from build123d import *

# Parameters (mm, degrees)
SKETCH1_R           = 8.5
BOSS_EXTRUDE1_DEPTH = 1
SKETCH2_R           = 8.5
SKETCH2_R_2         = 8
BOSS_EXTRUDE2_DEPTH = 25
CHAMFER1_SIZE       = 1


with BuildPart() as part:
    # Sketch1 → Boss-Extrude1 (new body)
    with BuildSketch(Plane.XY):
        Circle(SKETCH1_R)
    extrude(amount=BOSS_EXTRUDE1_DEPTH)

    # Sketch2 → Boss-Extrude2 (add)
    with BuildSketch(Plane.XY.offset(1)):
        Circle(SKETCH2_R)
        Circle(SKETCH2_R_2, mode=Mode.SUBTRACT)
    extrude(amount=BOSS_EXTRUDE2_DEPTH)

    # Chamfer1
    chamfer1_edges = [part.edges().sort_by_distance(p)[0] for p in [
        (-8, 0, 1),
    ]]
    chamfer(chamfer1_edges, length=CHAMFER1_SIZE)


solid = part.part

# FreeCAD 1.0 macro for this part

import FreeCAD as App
import Part
import Sketcher


def edges_at(feature, points):
    """Names of the edges that pass closest to the given points."""
    edges = feature.Shape.Edges
    near = lambda p: min(range(len(edges)), key=lambda i: edges[i].distToShape(Part.Vertex(*p))[0])
    return sorted({f"Edge{near(p) + 1}" for p in points})

doc = App.newDocument("Part")
body = doc.addObject("PartDesign::Body", "Body")

# Sketch on XY plane
sketch1 = body.newObject("Sketcher::SketchObject", "Sketch")
sketch1.AttachmentSupport = (doc.getObject("XY_Plane"), [""])
sketch1.MapMode = "FlatFace"
sketch1.addGeometry(Part.Circle(App.Vector(0, 0, 0), App.Vector(0, 0, 1), 8), False)
sketch1.addConstraint([
    Sketcher.Constraint("Coincident", 0, 3, -1, 1),
    Sketcher.Constraint("Diameter", 0, 17.0),
])
pad1 = body.newObject("PartDesign::Pad", "Pad")
pad1.Profile = sketch1
pad1.Length = 1

# Sketch on XY plane
sketch2 = body.newObject("Sketcher::SketchObject", "Sketch001")
sketch2.AttachmentSupport = (doc.getObject("XY_Plane"), [""])
sketch2.MapMode = "FlatFace"
sketch2.AttachmentOffset = App.Placement(App.Vector(0, 0, 1), App.Rotation())
sketch2.addGeometry([
    Part.Circle(App.Vector(0, 0, 0), App.Vector(0, 0, 1), 8),
    Part.Circle(App.Vector(0, 0, 0), App.Vector(0, 0, 1), 8),
], False)
sketch2.addConstraint([
    Sketcher.Constraint("Coincident", 0, 3, -1, 1),
    Sketcher.Constraint("Coincident", 1, 3, -1, 1),
    Sketcher.Constraint("Diameter", 0, 17.0),
    Sketcher.Constraint("Diameter", 1, 16.0),
])
pad2 = body.newObject("PartDesign::Pad", "Pad001")
pad2.Profile = sketch2
pad2.Length = 25
doc.recompute()

chamfer = body.newObject("PartDesign::Chamfer", "Chamfer")
chamfer.Base = (pad2, edges_at(pad2, [(-8, 0, 1)]))
chamfer.Size = 1

doc.recompute()
